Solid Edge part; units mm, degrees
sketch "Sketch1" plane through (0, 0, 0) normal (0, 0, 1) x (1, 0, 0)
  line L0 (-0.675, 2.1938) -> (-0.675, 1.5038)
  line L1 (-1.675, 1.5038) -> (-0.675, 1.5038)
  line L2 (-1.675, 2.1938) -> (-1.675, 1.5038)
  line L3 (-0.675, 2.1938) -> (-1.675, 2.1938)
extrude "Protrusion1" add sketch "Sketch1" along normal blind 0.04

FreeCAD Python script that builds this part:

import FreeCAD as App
import Part
import Sketcher

V = App.Vector


def add_polygon(sketch, points):
    """Adds a closed chain of lines whose ends are joined by coincident constraints."""
    first, n = sketch.GeometryCount, len(points)
    for a, b in zip(points, points[1:] + points[:1]):
        sketch.addGeometry(Part.LineSegment(App.Vector(*a, 0), App.Vector(*b, 0)), False)
    for i in range(n):
        sketch.addConstraint(Sketcher.Constraint("Coincident", first + i, 2, first + (i + 1) % n, 1))

doc = App.newDocument("Part")
params = doc.addObject("Spreadsheet::Sheet", "Params")
for row, (alias, value) in enumerate([
    ("sketch1_width", "1 mm"),
    ("sketch1_height", "0.69 mm"),
    ("pad1_length", "0.04 mm"),
], start=1):
    params.set(f"A{row}", alias)
    params.set(f"B{row}", "=" + value)
    params.setAlias(f"B{row}", alias)

body = doc.addObject("PartDesign::Body", "Body")

# Sketch on XY plane
sketch1 = doc.addObject("Sketcher::SketchObject", "Sketch")
body.addObject(sketch1)
sketch1.AttachmentSupport = (doc.XY_Plane, [""])
sketch1.MapMode = "FlatFace"
add_polygon(sketch1, [(-0.7, 1.5), (-0.7, 2.2), (-1.7, 2.2), (-1.7, 1.5)])  # lines 0-3
sketch1.addConstraint(Sketcher.Constraint("Vertical", 0))
sketch1.addConstraint(Sketcher.Constraint("Horizontal", 1))
sketch1.addConstraint(Sketcher.Constraint("Vertical", 2))
sketch1.addConstraint(Sketcher.Constraint("Horizontal", 3))
sketch1.addConstraint(Sketcher.Constraint("DistanceX", 1, 2, 1, 1, 1.0))
sketch1.addConstraint(Sketcher.Constraint("DistanceY", 0, 1, 0, 2, 0.69))
sketch1.addConstraint(Sketcher.Constraint("DistanceX", 0, 2, -1, 1, 0.675))
sketch1.addConstraint(Sketcher.Constraint("DistanceY", -1, 1, 0, 2, 2.1938))
sketch1.setExpression("Constraints[8]", "Params.sketch1_width")
sketch1.setExpression("Constraints[9]", "Params.sketch1_height")
pad1 = doc.addObject("PartDesign::Pad", "Pad")
body.addObject(pad1)
pad1.Profile = sketch1
pad1.setExpression("Length", "Params.pad1_length")

doc.recompute()
